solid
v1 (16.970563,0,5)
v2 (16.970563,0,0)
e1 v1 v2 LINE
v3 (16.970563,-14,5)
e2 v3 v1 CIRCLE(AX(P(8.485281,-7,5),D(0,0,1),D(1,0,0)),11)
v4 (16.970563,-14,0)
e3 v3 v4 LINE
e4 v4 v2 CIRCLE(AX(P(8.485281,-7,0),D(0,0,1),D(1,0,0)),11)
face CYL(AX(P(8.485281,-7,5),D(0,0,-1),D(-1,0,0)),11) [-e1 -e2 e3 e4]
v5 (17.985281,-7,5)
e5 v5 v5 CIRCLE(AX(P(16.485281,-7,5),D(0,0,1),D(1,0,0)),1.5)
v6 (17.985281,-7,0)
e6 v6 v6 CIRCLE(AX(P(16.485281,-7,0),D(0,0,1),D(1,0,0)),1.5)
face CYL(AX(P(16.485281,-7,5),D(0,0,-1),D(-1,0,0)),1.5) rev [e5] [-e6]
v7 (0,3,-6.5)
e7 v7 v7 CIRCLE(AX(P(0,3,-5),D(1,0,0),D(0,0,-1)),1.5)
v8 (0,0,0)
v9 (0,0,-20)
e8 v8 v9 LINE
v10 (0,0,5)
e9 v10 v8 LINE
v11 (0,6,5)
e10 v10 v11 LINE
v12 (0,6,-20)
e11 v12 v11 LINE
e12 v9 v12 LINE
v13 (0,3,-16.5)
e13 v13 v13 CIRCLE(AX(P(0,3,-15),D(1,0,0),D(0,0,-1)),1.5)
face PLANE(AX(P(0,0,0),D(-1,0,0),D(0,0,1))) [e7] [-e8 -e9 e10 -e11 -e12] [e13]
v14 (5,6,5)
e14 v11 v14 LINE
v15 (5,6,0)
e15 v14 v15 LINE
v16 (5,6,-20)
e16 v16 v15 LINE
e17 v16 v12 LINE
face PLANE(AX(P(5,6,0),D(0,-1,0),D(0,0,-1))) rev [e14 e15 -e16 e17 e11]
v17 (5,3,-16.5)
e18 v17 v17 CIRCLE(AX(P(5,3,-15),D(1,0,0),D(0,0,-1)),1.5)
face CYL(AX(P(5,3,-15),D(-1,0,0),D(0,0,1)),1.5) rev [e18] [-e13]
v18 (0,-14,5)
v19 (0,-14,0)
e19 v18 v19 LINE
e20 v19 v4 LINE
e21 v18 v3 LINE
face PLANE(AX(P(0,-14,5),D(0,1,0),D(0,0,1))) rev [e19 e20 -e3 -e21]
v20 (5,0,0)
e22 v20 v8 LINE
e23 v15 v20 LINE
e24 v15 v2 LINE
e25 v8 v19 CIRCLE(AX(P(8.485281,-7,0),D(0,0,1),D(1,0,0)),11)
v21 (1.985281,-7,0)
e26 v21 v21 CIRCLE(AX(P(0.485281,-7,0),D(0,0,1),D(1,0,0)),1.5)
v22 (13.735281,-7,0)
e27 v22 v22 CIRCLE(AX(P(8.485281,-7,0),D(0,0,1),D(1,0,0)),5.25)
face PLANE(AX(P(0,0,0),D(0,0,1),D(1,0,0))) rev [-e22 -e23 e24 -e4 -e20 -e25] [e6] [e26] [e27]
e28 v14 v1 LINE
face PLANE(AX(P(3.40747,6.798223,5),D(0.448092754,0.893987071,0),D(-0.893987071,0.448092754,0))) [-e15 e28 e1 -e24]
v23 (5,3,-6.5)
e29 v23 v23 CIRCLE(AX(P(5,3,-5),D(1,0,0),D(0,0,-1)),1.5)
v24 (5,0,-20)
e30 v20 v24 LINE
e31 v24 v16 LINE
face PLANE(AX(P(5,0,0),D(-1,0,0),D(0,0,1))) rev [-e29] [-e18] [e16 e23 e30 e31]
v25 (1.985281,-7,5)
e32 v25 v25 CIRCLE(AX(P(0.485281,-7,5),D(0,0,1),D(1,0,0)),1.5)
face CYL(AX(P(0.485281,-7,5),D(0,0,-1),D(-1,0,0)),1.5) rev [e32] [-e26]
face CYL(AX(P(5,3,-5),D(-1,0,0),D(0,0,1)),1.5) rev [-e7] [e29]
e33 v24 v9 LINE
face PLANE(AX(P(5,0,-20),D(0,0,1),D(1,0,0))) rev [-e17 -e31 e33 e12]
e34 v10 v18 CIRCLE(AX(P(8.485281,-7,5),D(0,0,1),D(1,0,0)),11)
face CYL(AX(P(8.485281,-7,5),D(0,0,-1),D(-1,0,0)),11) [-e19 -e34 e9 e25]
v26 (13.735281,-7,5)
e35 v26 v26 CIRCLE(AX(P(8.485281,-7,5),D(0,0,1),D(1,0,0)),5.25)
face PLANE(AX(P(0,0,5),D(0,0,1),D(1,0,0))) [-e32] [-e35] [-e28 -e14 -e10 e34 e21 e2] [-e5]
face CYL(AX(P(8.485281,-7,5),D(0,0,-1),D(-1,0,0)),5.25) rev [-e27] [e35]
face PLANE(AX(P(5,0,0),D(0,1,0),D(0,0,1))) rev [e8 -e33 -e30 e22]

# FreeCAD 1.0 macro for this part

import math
import FreeCAD as App
import Part
import Sketcher
from FreeCAD import Vector


def add_polygon(sketch, points):
    """Adds a closed chain of lines whose ends are joined by coincident constraints."""
    first, n = sketch.GeometryCount, len(points)
    for a, b in zip(points, points[1:] + points[:1]):
        sketch.addGeometry(Part.LineSegment(App.Vector(*a, 0), App.Vector(*b, 0)), False)
    for i in range(n):
        sketch.addConstraint(Sketcher.Constraint("Coincident", first + i, 2, first + (i + 1) % n, 1))

doc = App.newDocument("Part")
body = doc.addObject("PartDesign::Body", "Body")

# Sketch on YZ plane
sketch1 = body.newObject("Sketcher::SketchObject", "Sketch")
sketch1.AttachmentSupport = (doc.getObject("YZ_Plane"), [""])
sketch1.MapMode = "FlatFace"
add_polygon(sketch1, [(6, 0), (0, 0), (0, -20), (6, -20)])  # lines 0-3
sketch1.addGeometry(Part.Circle(Vector(3, -5, 0), Vector(0, 0, 1), 1.5), False)  # 4
sketch1.addGeometry(Part.Circle(Vector(3, -15, 0), Vector(0, 0, 1), 1.5), False)  # 5
sketch1.addConstraint([
    Sketcher.Constraint("Horizontal", 0),
    Sketcher.Constraint("Vertical", 1),
    Sketcher.Constraint("Horizontal", 2),
    Sketcher.Constraint("Vertical", 3),
    Sketcher.Constraint("Coincident", 0, 2, -1, 1),
    Sketcher.Constraint("Equal", 4, 5),
    Sketcher.Constraint("Vertical", 4, 3, 5, 3),
    Sketcher.Constraint("Diameter", 4, 3.0),
    Sketcher.Constraint("DistanceX", 0, 2, 0, 1, 6.0),
    Sketcher.Constraint("DistanceY", 1, 2, 1, 1, 20.0),
    Sketcher.Constraint("DistanceX", -1, 1, 4, 3, 3.0),
    Sketcher.Constraint("DistanceY", 4, 3, -1, 1, 5.0),
    Sketcher.Constraint("DistanceY", 5, 3, -1, 1, 15.0),
])
pad1 = body.newObject("PartDesign::Pad", "Pad")
pad1.Profile = sketch1
pad1.Length = 5

# Sketch on XY plane
sketch2 = body.newObject("Sketcher::SketchObject", "Sketch001")
sketch2.AttachmentSupport = (doc.getObject("XY_Plane"), [""])
sketch2.MapMode = "FlatFace"
sketch2.addGeometry([
    Part.ArcOfCircle(Part.Circle(Vector(8.485281, -7, 0), Vector(0, 0, 1), 11), math.radians(140.478804), math.radians(219.521196)),  # 0
    Part.LineSegment(Vector(0, -14, 0), Vector(16.970563, -14, 0)),  # 1
    Part.ArcOfCircle(Part.Circle(Vector(8.485281, -7, 0), Vector(0, 0, 1), 11), math.radians(-39.521196), math.radians(39.521196)),  # 2
    Part.LineSegment(Vector(16.970563, 0, 0), Vector(5, 6, 0)),  # 3
    Part.LineSegment(Vector(5, 6, 0), Vector(0, 6, 0)),  # 4
    Part.LineSegment(Vector(0, 6, 0), Vector(0, 0, 0)),  # 5
    Part.Circle(Vector(0.485281, -7, 0), Vector(0, 0, 1), 1.5),  # 6
    Part.Circle(Vector(8.485281, -7, 0), Vector(0, 0, 1), 5.25),  # 7
    Part.Circle(Vector(16.485281, -7, 0), Vector(0, 0, 1), 1.5),  # 8
], False)
sketch2.addConstraint([
    Sketcher.Constraint("Coincident", 0, 2, 1, 1),
    Sketcher.Constraint("Coincident", 1, 2, 2, 1),
    Sketcher.Constraint("Coincident", 2, 2, 3, 1),
    Sketcher.Constraint("Coincident", 3, 2, 4, 1),
    Sketcher.Constraint("Coincident", 4, 2, 5, 1),
    Sketcher.Constraint("Coincident", 5, 2, 0, 1),
    Sketcher.Constraint("Horizontal", 1),
    Sketcher.Constraint("Horizontal", 4),
    Sketcher.Constraint("Vertical", 5),
    Sketcher.Constraint("Coincident", 5, 2, -1, 1),
    Sketcher.Constraint("Coincident", 2, 3, 0, 3),
    Sketcher.Constraint("Coincident", 7, 3, 0, 3),
    Sketcher.Constraint("Equal", 0, 2),
    Sketcher.Constraint("Equal", 6, 8),
    Sketcher.Constraint("PointOnObject", 0, 2, -2),
    Sketcher.Constraint("PointOnObject", 2, 2, -1),
    Sketcher.Constraint("Horizontal", 2, 3, 6, 3),
    Sketcher.Constraint("Horizontal", 7, 3, 8, 3),
    Sketcher.Constraint("Diameter", 6, 3.0),
    Sketcher.Constraint("Radius", 0, 11.0),
    Sketcher.Constraint("Diameter", 7, 10.5),
    Sketcher.Constraint("DistanceX", 4, 2, 4, 1, 5.0),
    Sketcher.Constraint("DistanceY", 5, 2, 5, 1, 6.0),
    Sketcher.Constraint("DistanceY", 0, 3, -1, 1, 7.0),
    Sketcher.Constraint("DistanceX", 6, 3, 0, 3, 8.0),
    Sketcher.Constraint("DistanceX", 2, 3, 8, 3, 8.0),
])
pad2 = body.newObject("PartDesign::Pad", "Pad001")
pad2.Profile = sketch2
pad2.Length = 5

doc.recompute()
